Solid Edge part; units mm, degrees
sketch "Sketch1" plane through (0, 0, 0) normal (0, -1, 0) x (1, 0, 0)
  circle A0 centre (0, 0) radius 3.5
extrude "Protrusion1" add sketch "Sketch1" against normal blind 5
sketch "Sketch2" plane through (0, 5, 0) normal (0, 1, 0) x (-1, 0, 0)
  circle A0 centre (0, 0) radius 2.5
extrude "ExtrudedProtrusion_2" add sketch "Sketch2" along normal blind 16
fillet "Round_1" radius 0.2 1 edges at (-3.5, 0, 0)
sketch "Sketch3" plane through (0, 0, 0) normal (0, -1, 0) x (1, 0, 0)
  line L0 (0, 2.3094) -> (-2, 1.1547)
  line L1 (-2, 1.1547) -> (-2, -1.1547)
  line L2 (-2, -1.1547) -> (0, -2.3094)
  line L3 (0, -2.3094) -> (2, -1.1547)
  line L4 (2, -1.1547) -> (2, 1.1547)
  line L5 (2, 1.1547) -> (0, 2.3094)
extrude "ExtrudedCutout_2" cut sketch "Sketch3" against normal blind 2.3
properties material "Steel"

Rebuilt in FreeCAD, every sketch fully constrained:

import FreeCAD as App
import Part
import Sketcher
Q = App.Units.Quantity


def edges_at(feature, points):
    """Names of the edges that pass closest to the given points."""
    edges = feature.Shape.Edges
    near = lambda p: min(range(len(edges)), key=lambda i: edges[i].distToShape(Part.Vertex(*p))[0])
    return sorted({f"Edge{near(p) + 1}" for p in points})

doc = App.newDocument("Part")
body = doc.addObject("PartDesign::Body", "Body")

sketch1 = doc.addObject("Sketcher::SketchObject", "Sketch")
body.addObject(sketch1)
sketch1.AttachmentSupport = (doc.XZ_Plane, [""])
sketch1.MapMode = "FlatFace"
sketch1.addGeometry(Part.Circle(App.Vector(0, 0, 0), App.Vector(0, 0, 1), 3.5), False)
sketch1.addConstraint([
    Sketcher.Constraint("Coincident", 0, 3, -1, 1),
    Sketcher.Constraint("Diameter", 0, Q("7 mm")),
])
pad1 = doc.addObject("PartDesign::Pad", "Pad")
body.addObject(pad1)
pad1.Profile = sketch1
pad1.Length = 5
pad1.Reversed = True

sketch2 = doc.addObject("Sketcher::SketchObject", "Sketch001")
body.addObject(sketch2)
sketch2.AttachmentSupport = (doc.XZ_Plane, [""])
sketch2.MapMode = "FlatFace"
sketch2.AttachmentOffset = App.Placement(App.Vector(0, 0, -5), App.Rotation())
sketch2.addGeometry(Part.Circle(App.Vector(0, 0, 0), App.Vector(0, 0, 1), 2.5), False)
sketch2.addConstraint([
    Sketcher.Constraint("Coincident", 0, 3, -1, 1),
    Sketcher.Constraint("Diameter", 0, Q("5 mm")),
])
pad2 = doc.addObject("PartDesign::Pad", "Pad001")
body.addObject(pad2)
pad2.Profile = sketch2
pad2.Length = 16
pad2.Reversed = True
doc.recompute()

fillet = doc.addObject("PartDesign::Fillet", "Fillet")
body.addObject(fillet)
fillet.Base = (pad2, edges_at(pad2, [(-3.5, 0, 0)]))
fillet.Radius = 0.2

sketch3 = doc.addObject("Sketcher::SketchObject", "Sketch002")
body.addObject(sketch3)
sketch3.AttachmentSupport = (doc.XZ_Plane, [""])
sketch3.MapMode = "FlatFace"
sketch3.addGeometry([
    Part.LineSegment(App.Vector(2, 1.2, 0), App.Vector(0, 2.3, 0)),
    Part.LineSegment(App.Vector(0, 2.3, 0), App.Vector(-2, 1.2, 0)),
    Part.LineSegment(App.Vector(-2, 1.2, 0), App.Vector(-2, -1.2, 0)),
    Part.LineSegment(App.Vector(-2, -1.2, 0), App.Vector(0, -2.3, 0)),
    Part.LineSegment(App.Vector(0, -2.3, 0), App.Vector(2, -1.2, 0)),
    Part.LineSegment(App.Vector(2, -1.2, 0), App.Vector(2, 1.2, 0)),
], False)
sketch3.addConstraint([
    Sketcher.Constraint("Coincident", 0, 2, 1, 1),
    Sketcher.Constraint("Coincident", 1, 2, 2, 1),
    Sketcher.Constraint("Coincident", 2, 2, 3, 1),
    Sketcher.Constraint("Coincident", 3, 2, 4, 1),
    Sketcher.Constraint("Coincident", 4, 2, 5, 1),
    Sketcher.Constraint("Coincident", 5, 2, 0, 1),
    Sketcher.Constraint("Vertical", 2),
    Sketcher.Constraint("Vertical", 5),
    Sketcher.Constraint("Symmetric", 0, 2, 3, 2, -1, 1),
    Sketcher.Constraint("Symmetric", 1, 2, 4, 2, -1, 1),
    Sketcher.Constraint("PointOnObject", 0, 2, -2),
    Sketcher.Constraint("Parallel", 0, 3),
    Sketcher.Constraint("Horizontal", 2, 2, 4, 2),
    Sketcher.Constraint("Angle", 0, Q("150 deg")),
    Sketcher.Constraint("DistanceX", 1, 2, -1, 1, Q("2 mm")),
    Sketcher.Constraint("DistanceY", 2, 2, 2, 1, Q("2.3094 mm")),
])
pocket1 = doc.addObject("PartDesign::Pocket", "Pocket")
body.addObject(pocket1)
pocket1.Profile = sketch3
pocket1.Length = 2.3

doc.recompute()
